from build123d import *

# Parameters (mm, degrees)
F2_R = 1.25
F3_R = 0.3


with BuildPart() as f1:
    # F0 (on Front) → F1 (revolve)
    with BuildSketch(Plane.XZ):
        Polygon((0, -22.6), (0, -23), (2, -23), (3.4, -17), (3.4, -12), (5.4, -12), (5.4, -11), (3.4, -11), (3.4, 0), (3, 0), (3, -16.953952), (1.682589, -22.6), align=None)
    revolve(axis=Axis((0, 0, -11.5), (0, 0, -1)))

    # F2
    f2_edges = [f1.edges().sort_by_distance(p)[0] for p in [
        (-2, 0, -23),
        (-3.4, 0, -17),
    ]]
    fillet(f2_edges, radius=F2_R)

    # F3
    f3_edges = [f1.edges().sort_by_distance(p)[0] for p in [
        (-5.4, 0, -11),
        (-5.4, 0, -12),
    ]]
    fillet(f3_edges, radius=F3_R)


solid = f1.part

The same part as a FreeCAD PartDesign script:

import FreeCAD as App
import Part
import Sketcher


def edges_at(feature, points):
    """Names of the edges that pass closest to the given points."""
    edges = feature.Shape.Edges
    near = lambda p: min(range(len(edges)), key=lambda i: edges[i].distToShape(Part.Vertex(*p))[0])
    return sorted({f"Edge{near(p) + 1}" for p in points})

doc = App.newDocument("Part")
body = doc.addObject("PartDesign::Body", "Body")

sketch1 = body.newObject("Sketcher::SketchObject", "Sketch")
sketch1.AttachmentSupport = (doc.getObject("XZ_Plane"), [""])
sketch1.MapMode = "FlatFace"
sketch1.addGeometry([
    Part.LineSegment(App.Vector(0, -22.6, 0), App.Vector(0, -23, 0)),
    Part.LineSegment(App.Vector(0, -23, 0), App.Vector(2, -23, 0)),
    Part.LineSegment(App.Vector(2, -23, 0), App.Vector(3.4, -17, 0)),
    Part.LineSegment(App.Vector(3.4, -17, 0), App.Vector(3.4, -12, 0)),
    Part.LineSegment(App.Vector(3.4, -12, 0), App.Vector(5.4, -12, 0)),
    Part.LineSegment(App.Vector(5.4, -12, 0), App.Vector(5.4, -11, 0)),
    Part.LineSegment(App.Vector(5.4, -11, 0), App.Vector(3.4, -11, 0)),
    Part.LineSegment(App.Vector(3.4, -11, 0), App.Vector(3.4, 0, 0)),
    Part.LineSegment(App.Vector(3.4, 0, 0), App.Vector(3, 0, 0)),
    Part.LineSegment(App.Vector(3, 0, 0), App.Vector(3, -16.953952, 0)),
    Part.LineSegment(App.Vector(3, -16.953952, 0), App.Vector(1.682589, -22.6, 0)),
    Part.LineSegment(App.Vector(1.682589, -22.6, 0), App.Vector(0, -22.6, 0)),
], False)
sketch1.addConstraint([
    Sketcher.Constraint("Coincident", 0, 2, 1, 1),
    Sketcher.Constraint("Coincident", 1, 2, 2, 1),
    Sketcher.Constraint("Coincident", 2, 2, 3, 1),
    Sketcher.Constraint("Coincident", 3, 2, 4, 1),
    Sketcher.Constraint("Coincident", 4, 2, 5, 1),
    Sketcher.Constraint("Coincident", 5, 2, 6, 1),
    Sketcher.Constraint("Coincident", 6, 2, 7, 1),
    Sketcher.Constraint("Coincident", 7, 2, 8, 1),
    Sketcher.Constraint("Coincident", 8, 2, 9, 1),
    Sketcher.Constraint("Coincident", 9, 2, 10, 1),
    Sketcher.Constraint("Coincident", 10, 2, 11, 1),
    Sketcher.Constraint("Coincident", 11, 2, 0, 1),
    Sketcher.Constraint("Vertical", 0),
    Sketcher.Constraint("Horizontal", 1),
    Sketcher.Constraint("Vertical", 3),
    Sketcher.Constraint("Horizontal", 4),
    Sketcher.Constraint("Vertical", 5),
    Sketcher.Constraint("Horizontal", 6),
    Sketcher.Constraint("Vertical", 7),
    Sketcher.Constraint("Horizontal", 8),
    Sketcher.Constraint("Vertical", 9),
    Sketcher.Constraint("Horizontal", 11),
    Sketcher.Constraint("PointOnObject", 0, 2, -2),
    Sketcher.Constraint("PointOnObject", 7, 2, -1),
    Sketcher.Constraint("Parallel", 2, 10),
    Sketcher.Constraint("Vertical", 3, 2, 6, 2),
    Sketcher.Constraint("Equal", 1, 4),
    Sketcher.Constraint("Equal", 8, 0),
    Sketcher.Constraint("DistanceX", 1, 1, 1, 2, 2.0),
    Sketcher.Constraint("DistanceY", 3, 1, 3, 2, 5.0),
    Sketcher.Constraint("DistanceY", 5, 1, 5, 2, 1.0),
    Sketcher.Constraint("DistanceY", 7, 1, 7, 2, 11.0),
    Sketcher.Constraint("DistanceX", 8, 2, 8, 1, 0.4),
    Sketcher.Constraint("DistanceY", 0, 2, -1, 1, 23.0),
    Sketcher.Constraint("DistanceX", -1, 1, 8, 2, 3.0),
    Sketcher.Constraint("DistanceX", 11, 2, 11, 1, 1.682589),
])
revolution = body.newObject("PartDesign::Revolution", "Revolution")
revolution.Profile = sketch1
revolution.ReferenceAxis = (sketch1, ["V_Axis"])
revolution.Angle = 360
doc.recompute()

fillet = body.newObject("PartDesign::Fillet", "Fillet")
fillet.Base = (revolution, edges_at(revolution, [(-2, 0, -23), (-3.4, 0, -17)]))
fillet.Radius = 1.25
doc.recompute()

fillet2 = body.newObject("PartDesign::Fillet", "Fillet001")
fillet2.Base = (fillet, edges_at(fillet, [(-5.4, 0, -11), (-5.4, 0, -12)]))
fillet2.Radius = 0.3

doc.recompute()
